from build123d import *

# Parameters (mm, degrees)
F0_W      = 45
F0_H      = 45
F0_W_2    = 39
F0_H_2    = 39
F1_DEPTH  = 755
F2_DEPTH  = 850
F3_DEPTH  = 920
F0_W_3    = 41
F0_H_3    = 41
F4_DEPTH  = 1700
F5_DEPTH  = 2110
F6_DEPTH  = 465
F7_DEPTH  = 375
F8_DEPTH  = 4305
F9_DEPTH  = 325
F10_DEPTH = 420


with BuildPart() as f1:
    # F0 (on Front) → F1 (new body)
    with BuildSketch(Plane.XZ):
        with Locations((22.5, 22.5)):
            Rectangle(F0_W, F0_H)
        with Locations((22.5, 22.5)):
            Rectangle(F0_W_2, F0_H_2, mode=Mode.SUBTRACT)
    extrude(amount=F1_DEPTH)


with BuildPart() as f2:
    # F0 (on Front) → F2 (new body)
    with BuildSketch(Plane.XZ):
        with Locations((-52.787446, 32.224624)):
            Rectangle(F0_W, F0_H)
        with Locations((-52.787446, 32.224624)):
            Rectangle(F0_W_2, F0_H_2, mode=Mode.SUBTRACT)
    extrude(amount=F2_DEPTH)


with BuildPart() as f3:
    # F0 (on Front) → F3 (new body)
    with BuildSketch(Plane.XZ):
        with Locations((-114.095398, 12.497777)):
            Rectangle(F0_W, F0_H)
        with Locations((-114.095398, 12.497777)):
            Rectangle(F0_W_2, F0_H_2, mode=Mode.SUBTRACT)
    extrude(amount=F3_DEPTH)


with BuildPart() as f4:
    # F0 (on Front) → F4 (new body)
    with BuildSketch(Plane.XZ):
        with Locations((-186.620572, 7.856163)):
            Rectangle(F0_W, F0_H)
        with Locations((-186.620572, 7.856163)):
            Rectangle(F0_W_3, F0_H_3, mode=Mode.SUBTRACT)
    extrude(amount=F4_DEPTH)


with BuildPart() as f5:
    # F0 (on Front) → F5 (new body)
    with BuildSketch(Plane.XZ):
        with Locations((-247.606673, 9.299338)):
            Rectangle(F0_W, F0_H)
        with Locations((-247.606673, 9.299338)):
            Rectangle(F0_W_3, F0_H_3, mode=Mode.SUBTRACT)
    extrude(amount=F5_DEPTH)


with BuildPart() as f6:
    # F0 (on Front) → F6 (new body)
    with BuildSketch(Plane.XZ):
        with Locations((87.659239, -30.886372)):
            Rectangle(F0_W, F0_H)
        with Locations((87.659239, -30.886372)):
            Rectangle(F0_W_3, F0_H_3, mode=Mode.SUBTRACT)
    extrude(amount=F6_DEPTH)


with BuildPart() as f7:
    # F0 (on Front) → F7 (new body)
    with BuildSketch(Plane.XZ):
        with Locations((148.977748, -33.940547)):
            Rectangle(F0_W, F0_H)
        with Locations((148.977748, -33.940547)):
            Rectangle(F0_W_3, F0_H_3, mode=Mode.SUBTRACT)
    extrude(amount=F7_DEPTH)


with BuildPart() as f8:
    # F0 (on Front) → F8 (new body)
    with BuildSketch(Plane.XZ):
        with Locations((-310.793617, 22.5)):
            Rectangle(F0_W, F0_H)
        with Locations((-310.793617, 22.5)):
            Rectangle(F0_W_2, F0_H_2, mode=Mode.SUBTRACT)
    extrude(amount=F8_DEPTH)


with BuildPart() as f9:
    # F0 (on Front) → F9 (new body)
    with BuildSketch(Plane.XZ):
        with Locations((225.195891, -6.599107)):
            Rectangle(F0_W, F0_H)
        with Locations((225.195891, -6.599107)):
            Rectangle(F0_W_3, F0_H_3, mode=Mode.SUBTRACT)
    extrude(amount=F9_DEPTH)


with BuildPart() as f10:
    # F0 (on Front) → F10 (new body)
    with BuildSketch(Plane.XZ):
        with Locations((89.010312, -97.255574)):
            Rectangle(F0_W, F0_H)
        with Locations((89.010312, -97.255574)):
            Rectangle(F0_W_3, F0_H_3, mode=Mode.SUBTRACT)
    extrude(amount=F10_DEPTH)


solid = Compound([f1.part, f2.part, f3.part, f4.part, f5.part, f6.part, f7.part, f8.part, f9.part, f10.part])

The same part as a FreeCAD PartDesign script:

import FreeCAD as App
import Part
import Sketcher

V = App.Vector

doc = App.newDocument("Part")
body = doc.addObject("PartDesign::Body", "Body")

sketch1 = body.newObject("Sketcher::SketchObject", "Sketch")
sketch1.AttachmentSupport = (doc.getObject("XZ_Plane"), [""])
sketch1.MapMode = "FlatFace"
sketch1.addGeometry([
    Part.LineSegment(V(0, 45, 0), V(0, 0, 0)),
    Part.LineSegment(V(0, 0, 0), V(45, 0, 0)),
    Part.LineSegment(V(45, 0, 0), V(45, 45, 0)),
    Part.LineSegment(V(45, 45, 0), V(0, 45, 0)),
    Part.LineSegment(V(42, 3, 0), V(3, 3, 0)),
    Part.LineSegment(V(3, 3, 0), V(3, 42, 0)),
    Part.LineSegment(V(3, 42, 0), V(42, 42, 0)),
    Part.LineSegment(V(42, 42, 0), V(42, 3, 0)),
], False)
sketch1.addConstraint([
    Sketcher.Constraint("Coincident", 0, 2, 1, 1),
    Sketcher.Constraint("Coincident", 1, 2, 2, 1),
    Sketcher.Constraint("Coincident", 2, 2, 3, 1),
    Sketcher.Constraint("Coincident", 3, 2, 0, 1),
    Sketcher.Constraint("Coincident", 4, 2, 5, 1),
    Sketcher.Constraint("Coincident", 5, 2, 6, 1),
    Sketcher.Constraint("Coincident", 6, 2, 7, 1),
    Sketcher.Constraint("Coincident", 7, 2, 4, 1),
    Sketcher.Constraint("Vertical", 0),
    Sketcher.Constraint("Horizontal", 1),
    Sketcher.Constraint("Vertical", 2),
    Sketcher.Constraint("Horizontal", 3),
    Sketcher.Constraint("Horizontal", 4),
    Sketcher.Constraint("Vertical", 5),
    Sketcher.Constraint("Horizontal", 6),
    Sketcher.Constraint("Vertical", 7),
    Sketcher.Constraint("Coincident", 0, 2, -1, 1),
    Sketcher.Constraint("Equal", 3, 0),
    Sketcher.Constraint("Equal", 6, 5),
    Sketcher.Constraint("DistanceX", 1, 1, 1, 2, 45.0),
    Sketcher.Constraint("DistanceX", 4, 2, 4, 1, 39.0),
    Sketcher.Constraint("DistanceX", -1, 1, 4, 2, 3.0),
    Sketcher.Constraint("DistanceY", -1, 1, 4, 2, 3.0),
])
pad1 = body.newObject("PartDesign::Pad", "Pad")
pad1.Profile = sketch1
pad1.Length = 755
body2 = doc.addObject("PartDesign::Body", "Body001")

sketch2 = body2.newObject("Sketcher::SketchObject", "Sketch001")
sketch2.AttachmentSupport = (doc.getObject("XZ_Plane001"), [""])
sketch2.MapMode = "FlatFace"
sketch2.addGeometry([
    Part.LineSegment(V(-75, 55, 0), V(-75, 10, 0)),
    Part.LineSegment(V(-75, 10, 0), V(-30, 10, 0)),
    Part.LineSegment(V(-30, 10, 0), V(-30, 55, 0)),
    Part.LineSegment(V(-30, 55, 0), V(-75, 55, 0)),
    Part.LineSegment(V(-33, 13, 0), V(-72, 13, 0)),
    Part.LineSegment(V(-72, 13, 0), V(-72, 52, 0)),
    Part.LineSegment(V(-72, 52, 0), V(-33, 52, 0)),
    Part.LineSegment(V(-33, 52, 0), V(-33, 13, 0)),
], False)
sketch2.addConstraint([
    Sketcher.Constraint("Coincident", 0, 2, 1, 1),
    Sketcher.Constraint("Coincident", 1, 2, 2, 1),
    Sketcher.Constraint("Coincident", 2, 2, 3, 1),
    Sketcher.Constraint("Coincident", 3, 2, 0, 1),
    Sketcher.Constraint("Coincident", 4, 2, 5, 1),
    Sketcher.Constraint("Coincident", 5, 2, 6, 1),
    Sketcher.Constraint("Coincident", 6, 2, 7, 1),
    Sketcher.Constraint("Coincident", 7, 2, 4, 1),
    Sketcher.Constraint("Vertical", 0),
    Sketcher.Constraint("Horizontal", 1),
    Sketcher.Constraint("Vertical", 2),
    Sketcher.Constraint("Horizontal", 3),
    Sketcher.Constraint("Horizontal", 4),
    Sketcher.Constraint("Vertical", 5),
    Sketcher.Constraint("Horizontal", 6),
    Sketcher.Constraint("Vertical", 7),
    Sketcher.Constraint("Equal", 3, 0),
    Sketcher.Constraint("Equal", 6, 5),
    Sketcher.Constraint("DistanceX", 1, 1, 1, 2, 45.0),
    Sketcher.Constraint("DistanceX", 4, 2, 4, 1, 39.0),
    Sketcher.Constraint("DistanceX", 0, 2, 4, 2, 3.0),
    Sketcher.Constraint("DistanceY", 0, 2, 4, 2, 3.0),
    Sketcher.Constraint("DistanceX", 0, 2, -1, 1, 75.287446),
    Sketcher.Constraint("DistanceY", -1, 1, 0, 2, 9.724624),
])
pad2 = body2.newObject("PartDesign::Pad", "Pad001")
pad2.Profile = sketch2
pad2.Length = 850
body3 = doc.addObject("PartDesign::Body", "Body002")

sketch3 = body3.newObject("Sketcher::SketchObject", "Sketch002")
sketch3.AttachmentSupport = (doc.getObject("XZ_Plane002"), [""])
sketch3.MapMode = "FlatFace"
sketch3.addGeometry([
    Part.LineSegment(V(-137, 35, 0), V(-137, -10, 0)),
    Part.LineSegment(V(-137, -10, 0), V(-92, -10, 0)),
    Part.LineSegment(V(-92, -10, 0), V(-92, 35, 0)),
    Part.LineSegment(V(-92, 35, 0), V(-137, 35, 0)),
    Part.LineSegment(V(-95, -7, 0), V(-134, -7, 0)),
    Part.LineSegment(V(-134, -7, 0), V(-134, 32, 0)),
    Part.LineSegment(V(-134, 32, 0), V(-95, 32, 0)),
    Part.LineSegment(V(-95, 32, 0), V(-95, -7, 0)),
], False)
sketch3.addConstraint([
    Sketcher.Constraint("Coincident", 0, 2, 1, 1),
    Sketcher.Constraint("Coincident", 1, 2, 2, 1),
    Sketcher.Constraint("Coincident", 2, 2, 3, 1),
    Sketcher.Constraint("Coincident", 3, 2, 0, 1),
    Sketcher.Constraint("Coincident", 4, 2, 5, 1),
    Sketcher.Constraint("Coincident", 5, 2, 6, 1),
    Sketcher.Constraint("Coincident", 6, 2, 7, 1),
    Sketcher.Constraint("Coincident", 7, 2, 4, 1),
    Sketcher.Constraint("Vertical", 0),
    Sketcher.Constraint("Horizontal", 1),
    Sketcher.Constraint("Vertical", 2),
    Sketcher.Constraint("Horizontal", 3),
    Sketcher.Constraint("Horizontal", 4),
    Sketcher.Constraint("Vertical", 5),
    Sketcher.Constraint("Horizontal", 6),
    Sketcher.Constraint("Vertical", 7),
    Sketcher.Constraint("Equal", 3, 0),
    Sketcher.Constraint("Equal", 6, 5),
    Sketcher.Constraint("DistanceX", 1, 1, 1, 2, 45.0),
    Sketcher.Constraint("DistanceX", 4, 2, 4, 1, 39.0),
    Sketcher.Constraint("DistanceX", 0, 2, 4, 2, 3.0),
    Sketcher.Constraint("DistanceY", 0, 2, 4, 2, 3.0),
    Sketcher.Constraint("DistanceX", 1, 2, -1, 1, 91.595398),
    Sketcher.Constraint("DistanceY", 0, 2, -1, 1, 10.002223),
])
pad3 = body3.newObject("PartDesign::Pad", "Pad002")
pad3.Profile = sketch3
pad3.Length = 920
body4 = doc.addObject("PartDesign::Body", "Body003")

sketch4 = body4.newObject("Sketcher::SketchObject", "Sketch003")
sketch4.AttachmentSupport = (doc.getObject("XZ_Plane003"), [""])
sketch4.MapMode = "FlatFace"
sketch4.addGeometry([
    Part.LineSegment(V(-209, 30, 0), V(-209, -15, 0)),
    Part.LineSegment(V(-209, -15, 0), V(-164, -15, 0)),
    Part.LineSegment(V(-164, -15, 0), V(-164, 30, 0)),
    Part.LineSegment(V(-164, 30, 0), V(-209, 30, 0)),
    Part.LineSegment(V(-166, -13, 0), V(-207, -13, 0)),
    Part.LineSegment(V(-207, -13, 0), V(-207, 28, 0)),
    Part.LineSegment(V(-207, 28, 0), V(-166, 28, 0)),
    Part.LineSegment(V(-166, 28, 0), V(-166, -13, 0)),
], False)
sketch4.addConstraint([
    Sketcher.Constraint("Coincident", 0, 2, 1, 1),
    Sketcher.Constraint("Coincident", 1, 2, 2, 1),
    Sketcher.Constraint("Coincident", 2, 2, 3, 1),
    Sketcher.Constraint("Coincident", 3, 2, 0, 1),
    Sketcher.Constraint("Coincident", 4, 2, 5, 1),
    Sketcher.Constraint("Coincident", 5, 2, 6, 1),
    Sketcher.Constraint("Coincident", 6, 2, 7, 1),
    Sketcher.Constraint("Coincident", 7, 2, 4, 1),
    Sketcher.Constraint("Vertical", 0),
    Sketcher.Constraint("Horizontal", 1),
    Sketcher.Constraint("Vertical", 2),
    Sketcher.Constraint("Horizontal", 3),
    Sketcher.Constraint("Horizontal", 4),
    Sketcher.Constraint("Vertical", 5),
    Sketcher.Constraint("Horizontal", 6),
    Sketcher.Constraint("Vertical", 7),
    Sketcher.Constraint("Equal", 3, 0),
    Sketcher.Constraint("Equal", 6, 5),
    Sketcher.Constraint("DistanceX", 1, 1, 1, 2, 45.0),
    Sketcher.Constraint("DistanceX", 4, 2, 4, 1, 41.0),
    Sketcher.Constraint("DistanceX", 0, 2, 4, 2, 2.0),
    Sketcher.Constraint("DistanceY", 0, 2, 4, 2, 2.0),
    Sketcher.Constraint("DistanceX", 0, 2, -1, 1, 209.120572),
    Sketcher.Constraint("DistanceY", 0, 2, -1, 1, 14.643837),
])
pad4 = body4.newObject("PartDesign::Pad", "Pad003")
pad4.Profile = sketch4
pad4.Length = 1700
body5 = doc.addObject("PartDesign::Body", "Body004")

sketch5 = body5.newObject("Sketcher::SketchObject", "Sketch004")
sketch5.AttachmentSupport = (doc.getObject("XZ_Plane004"), [""])
sketch5.MapMode = "FlatFace"
sketch5.addGeometry([
    Part.LineSegment(V(-270, 32, 0), V(-270, -13, 0)),
    Part.LineSegment(V(-270, -13, 0), V(-225, -13, 0)),
    Part.LineSegment(V(-225, -13, 0), V(-225, 32, 0)),
    Part.LineSegment(V(-225, 32, 0), V(-270, 32, 0)),
    Part.LineSegment(V(-227, -11, 0), V(-268, -11, 0)),
    Part.LineSegment(V(-268, -11, 0), V(-268, 30, 0)),
    Part.LineSegment(V(-268, 30, 0), V(-227, 30, 0)),
    Part.LineSegment(V(-227, 30, 0), V(-227, -11, 0)),
], False)
sketch5.addConstraint([
    Sketcher.Constraint("Coincident", 0, 2, 1, 1),
    Sketcher.Constraint("Coincident", 1, 2, 2, 1),
    Sketcher.Constraint("Coincident", 2, 2, 3, 1),
    Sketcher.Constraint("Coincident", 3, 2, 0, 1),
    Sketcher.Constraint("Coincident", 4, 2, 5, 1),
    Sketcher.Constraint("Coincident", 5, 2, 6, 1),
    Sketcher.Constraint("Coincident", 6, 2, 7, 1),
    Sketcher.Constraint("Coincident", 7, 2, 4, 1),
    Sketcher.Constraint("Vertical", 0),
    Sketcher.Constraint("Horizontal", 1),
    Sketcher.Constraint("Vertical", 2),
    Sketcher.Constraint("Horizontal", 3),
    Sketcher.Constraint("Horizontal", 4),
    Sketcher.Constraint("Vertical", 5),
    Sketcher.Constraint("Horizontal", 6),
    Sketcher.Constraint("Vertical", 7),
    Sketcher.Constraint("Equal", 3, 0),
    Sketcher.Constraint("Equal", 6, 5),
    Sketcher.Constraint("DistanceX", 1, 1, 1, 2, 45.0),
    Sketcher.Constraint("DistanceX", 4, 2, 4, 1, 41.0),
    Sketcher.Constraint("DistanceX", 0, 2, 4, 2, 2.0),
    Sketcher.Constraint("DistanceY", 0, 2, 4, 2, 2.0),
    Sketcher.Constraint("DistanceX", 0, 2, -1, 1, 270.106673),
    Sketcher.Constraint("DistanceY", 0, 2, -1, 1, 13.200662),
])
pad5 = body5.newObject("PartDesign::Pad", "Pad004")
pad5.Profile = sketch5
pad5.Length = 2110
body6 = doc.addObject("PartDesign::Body", "Body005")

sketch6 = body6.newObject("Sketcher::SketchObject", "Sketch005")
sketch6.AttachmentSupport = (doc.getObject("XZ_Plane005"), [""])
sketch6.MapMode = "FlatFace"
sketch6.addGeometry([
    Part.LineSegment(V(65, -8, 0), V(65, -53, 0)),
    Part.LineSegment(V(65, -53, 0), V(110, -53, 0)),
    Part.LineSegment(V(110, -53, 0), V(110, -8, 0)),
    Part.LineSegment(V(110, -8, 0), V(65, -8, 0)),
    Part.LineSegment(V(108, -51, 0), V(67, -51, 0)),
    Part.LineSegment(V(67, -51, 0), V(67, -10, 0)),
    Part.LineSegment(V(67, -10, 0), V(108, -10, 0)),
    Part.LineSegment(V(108, -10, 0), V(108, -51, 0)),
], False)
sketch6.addConstraint([
    Sketcher.Constraint("Coincident", 0, 2, 1, 1),
    Sketcher.Constraint("Coincident", 1, 2, 2, 1),
    Sketcher.Constraint("Coincident", 2, 2, 3, 1),
    Sketcher.Constraint("Coincident", 3, 2, 0, 1),
    Sketcher.Constraint("Coincident", 4, 2, 5, 1),
    Sketcher.Constraint("Coincident", 5, 2, 6, 1),
    Sketcher.Constraint("Coincident", 6, 2, 7, 1),
    Sketcher.Constraint("Coincident", 7, 2, 4, 1),
    Sketcher.Constraint("Vertical", 0),
    Sketcher.Constraint("Horizontal", 1),
    Sketcher.Constraint("Vertical", 2),
    Sketcher.Constraint("Horizontal", 3),
    Sketcher.Constraint("Horizontal", 4),
    Sketcher.Constraint("Vertical", 5),
    Sketcher.Constraint("Horizontal", 6),
    Sketcher.Constraint("Vertical", 7),
    Sketcher.Constraint("Equal", 3, 0),
    Sketcher.Constraint("Equal", 6, 5),
    Sketcher.Constraint("DistanceX", 1, 1, 1, 2, 45.0),
    Sketcher.Constraint("DistanceX", 4, 2, 4, 1, 41.0),
    Sketcher.Constraint("DistanceX", 0, 2, 4, 2, 2.0),
    Sketcher.Constraint("DistanceY", 0, 2, 4, 2, 2.0),
    Sketcher.Constraint("DistanceX", -1, 1, 0, 2, 65.159239),
    Sketcher.Constraint("DistanceY", 0, 2, -1, 1, 53.386372),
])
pad6 = body6.newObject("PartDesign::Pad", "Pad005")
pad6.Profile = sketch6
pad6.Length = 465
body7 = doc.addObject("PartDesign::Body", "Body006")

sketch7 = body7.newObject("Sketcher::SketchObject", "Sketch006")
sketch7.AttachmentSupport = (doc.getObject("XZ_Plane006"), [""])
sketch7.MapMode = "FlatFace"
sketch7.addGeometry([
    Part.LineSegment(V(126, -11, 0), V(126, -56, 0)),
    Part.LineSegment(V(126, -56, 0), V(171, -56, 0)),
    Part.LineSegment(V(171, -56, 0), V(171, -11, 0)),
    Part.LineSegment(V(171, -11, 0), V(126, -11, 0)),
    Part.LineSegment(V(169, -54, 0), V(128, -54, 0)),
    Part.LineSegment(V(128, -54, 0), V(128, -13, 0)),
    Part.LineSegment(V(128, -13, 0), V(169, -13, 0)),
    Part.LineSegment(V(169, -13, 0), V(169, -54, 0)),
], False)
sketch7.addConstraint([
    Sketcher.Constraint("Coincident", 0, 2, 1, 1),
    Sketcher.Constraint("Coincident", 1, 2, 2, 1),
    Sketcher.Constraint("Coincident", 2, 2, 3, 1),
    Sketcher.Constraint("Coincident", 3, 2, 0, 1),
    Sketcher.Constraint("Coincident", 4, 2, 5, 1),
    Sketcher.Constraint("Coincident", 5, 2, 6, 1),
    Sketcher.Constraint("Coincident", 6, 2, 7, 1),
    Sketcher.Constraint("Coincident", 7, 2, 4, 1),
    Sketcher.Constraint("Vertical", 0),
    Sketcher.Constraint("Horizontal", 1),
    Sketcher.Constraint("Vertical", 2),
    Sketcher.Constraint("Horizontal", 3),
    Sketcher.Constraint("Horizontal", 4),
    Sketcher.Constraint("Vertical", 5),
    Sketcher.Constraint("Horizontal", 6),
    Sketcher.Constraint("Vertical", 7),
    Sketcher.Constraint("Equal", 3, 0),
    Sketcher.Constraint("Equal", 6, 5),
    Sketcher.Constraint("DistanceX", 1, 1, 1, 2, 45.0),
    Sketcher.Constraint("DistanceX", 4, 2, 4, 1, 41.0),
    Sketcher.Constraint("DistanceX", 0, 2, 4, 2, 2.0),
    Sketcher.Constraint("DistanceY", 0, 2, 4, 2, 2.0),
    Sketcher.Constraint("DistanceX", -1, 1, 0, 2, 126.477748),
    Sketcher.Constraint("DistanceY", 0, 2, -1, 1, 56.440547),
])
pad7 = body7.newObject("PartDesign::Pad", "Pad006")
pad7.Profile = sketch7
pad7.Length = 375
body8 = doc.addObject("PartDesign::Body", "Body007")

sketch8 = body8.newObject("Sketcher::SketchObject", "Sketch007")
sketch8.AttachmentSupport = (doc.getObject("XZ_Plane007"), [""])
sketch8.MapMode = "FlatFace"
sketch8.addGeometry([
    Part.LineSegment(V(-333, 45, 0), V(-333, 0, 0)),
    Part.LineSegment(V(-333, 0, 0), V(-288, 0, 0)),
    Part.LineSegment(V(-288, 0, 0), V(-288, 45, 0)),
    Part.LineSegment(V(-288, 45, 0), V(-333, 45, 0)),
    Part.LineSegment(V(-291, 3, 0), V(-330, 3, 0)),
    Part.LineSegment(V(-330, 3, 0), V(-330, 42, 0)),
    Part.LineSegment(V(-330, 42, 0), V(-291, 42, 0)),
    Part.LineSegment(V(-291, 42, 0), V(-291, 3, 0)),
], False)
sketch8.addConstraint([
    Sketcher.Constraint("Coincident", 0, 2, 1, 1),
    Sketcher.Constraint("Coincident", 1, 2, 2, 1),
    Sketcher.Constraint("Coincident", 2, 2, 3, 1),
    Sketcher.Constraint("Coincident", 3, 2, 0, 1),
    Sketcher.Constraint("Coincident", 4, 2, 5, 1),
    Sketcher.Constraint("Coincident", 5, 2, 6, 1),
    Sketcher.Constraint("Coincident", 6, 2, 7, 1),
    Sketcher.Constraint("Coincident", 7, 2, 4, 1),
    Sketcher.Constraint("Vertical", 0),
    Sketcher.Constraint("Horizontal", 1),
    Sketcher.Constraint("Vertical", 2),
    Sketcher.Constraint("Horizontal", 3),
    Sketcher.Constraint("Horizontal", 4),
    Sketcher.Constraint("Vertical", 5),
    Sketcher.Constraint("Horizontal", 6),
    Sketcher.Constraint("Vertical", 7),
    Sketcher.Constraint("PointOnObject", 0, 2, -1),
    Sketcher.Constraint("Equal", 3, 0),
    Sketcher.Constraint("Equal", 6, 5),
    Sketcher.Constraint("DistanceX", 1, 1, 1, 2, 45.0),
    Sketcher.Constraint("DistanceX", 4, 2, 4, 1, 39.0),
    Sketcher.Constraint("DistanceY", -1, 1, 4, 2, 3.0),
    Sketcher.Constraint("DistanceX", 0, 2, 4, 2, 3.0),
    Sketcher.Constraint("DistanceX", 0, 2, -1, 1, 333.293617),
])
pad8 = body8.newObject("PartDesign::Pad", "Pad007")
pad8.Profile = sketch8
pad8.Length = 4305
body9 = doc.addObject("PartDesign::Body", "Body008")

sketch9 = body9.newObject("Sketcher::SketchObject", "Sketch008")
sketch9.AttachmentSupport = (doc.getObject("XZ_Plane008"), [""])
sketch9.MapMode = "FlatFace"
sketch9.addGeometry([
    Part.LineSegment(V(203, 16, 0), V(203, -29, 0)),
    Part.LineSegment(V(203, -29, 0), V(248, -29, 0)),
    Part.LineSegment(V(248, -29, 0), V(248, 16, 0)),
    Part.LineSegment(V(248, 16, 0), V(203, 16, 0)),
    Part.LineSegment(V(246, -27, 0), V(205, -27, 0)),
    Part.LineSegment(V(205, -27, 0), V(205, 14, 0)),
    Part.LineSegment(V(205, 14, 0), V(246, 14, 0)),
    Part.LineSegment(V(246, 14, 0), V(246, -27, 0)),
], False)
sketch9.addConstraint([
    Sketcher.Constraint("Coincident", 0, 2, 1, 1),
    Sketcher.Constraint("Coincident", 1, 2, 2, 1),
    Sketcher.Constraint("Coincident", 2, 2, 3, 1),
    Sketcher.Constraint("Coincident", 3, 2, 0, 1),
    Sketcher.Constraint("Coincident", 4, 2, 5, 1),
    Sketcher.Constraint("Coincident", 5, 2, 6, 1),
    Sketcher.Constraint("Coincident", 6, 2, 7, 1),
    Sketcher.Constraint("Coincident", 7, 2, 4, 1),
    Sketcher.Constraint("Vertical", 0),
    Sketcher.Constraint("Horizontal", 1),
    Sketcher.Constraint("Vertical", 2),
    Sketcher.Constraint("Horizontal", 3),
    Sketcher.Constraint("Horizontal", 4),
    Sketcher.Constraint("Vertical", 5),
    Sketcher.Constraint("Horizontal", 6),
    Sketcher.Constraint("Vertical", 7),
    Sketcher.Constraint("Equal", 3, 0),
    Sketcher.Constraint("Equal", 6, 5),
    Sketcher.Constraint("DistanceX", 1, 1, 1, 2, 45.0),
    Sketcher.Constraint("DistanceX", 4, 2, 4, 1, 41.0),
    Sketcher.Constraint("DistanceX", 0, 2, 4, 2, 2.0),
    Sketcher.Constraint("DistanceY", 0, 2, 4, 2, 2.0),
    Sketcher.Constraint("DistanceX", -1, 1, 0, 2, 202.695891),
    Sketcher.Constraint("DistanceY", 0, 2, -1, 1, 29.099107),
])
pad9 = body9.newObject("PartDesign::Pad", "Pad008")
pad9.Profile = sketch9
pad9.Length = 325
body10 = doc.addObject("PartDesign::Body", "Body009")

sketch10 = body10.newObject("Sketcher::SketchObject", "Sketch009")
sketch10.AttachmentSupport = (doc.getObject("XZ_Plane009"), [""])
sketch10.MapMode = "FlatFace"
sketch10.addGeometry([
    Part.LineSegment(V(67, -75, 0), V(67, -120, 0)),
    Part.LineSegment(V(67, -120, 0), V(112, -120, 0)),
    Part.LineSegment(V(112, -120, 0), V(112, -75, 0)),
    Part.LineSegment(V(112, -75, 0), V(67, -75, 0)),
    Part.LineSegment(V(110, -118, 0), V(69, -118, 0)),
    Part.LineSegment(V(69, -118, 0), V(69, -77, 0)),
    Part.LineSegment(V(69, -77, 0), V(110, -77, 0)),
    Part.LineSegment(V(110, -77, 0), V(110, -118, 0)),
], False)
sketch10.addConstraint([
    Sketcher.Constraint("Coincident", 0, 2, 1, 1),
    Sketcher.Constraint("Coincident", 1, 2, 2, 1),
    Sketcher.Constraint("Coincident", 2, 2, 3, 1),
    Sketcher.Constraint("Coincident", 3, 2, 0, 1),
    Sketcher.Constraint("Coincident", 4, 2, 5, 1),
    Sketcher.Constraint("Coincident", 5, 2, 6, 1),
    Sketcher.Constraint("Coincident", 6, 2, 7, 1),
    Sketcher.Constraint("Coincident", 7, 2, 4, 1),
    Sketcher.Constraint("Vertical", 0),
    Sketcher.Constraint("Horizontal", 1),
    Sketcher.Constraint("Vertical", 2),
    Sketcher.Constraint("Horizontal", 3),
    Sketcher.Constraint("Horizontal", 4),
    Sketcher.Constraint("Vertical", 5),
    Sketcher.Constraint("Horizontal", 6),
    Sketcher.Constraint("Vertical", 7),
    Sketcher.Constraint("Equal", 3, 0),
    Sketcher.Constraint("Equal", 6, 5),
    Sketcher.Constraint("DistanceX", 1, 1, 1, 2, 45.0),
    Sketcher.Constraint("DistanceX", 4, 2, 4, 1, 41.0),
    Sketcher.Constraint("DistanceX", 0, 2, 4, 2, 2.0),
    Sketcher.Constraint("DistanceY", 0, 2, 4, 2, 2.0),
    Sketcher.Constraint("DistanceX", -1, 1, 0, 2, 66.510312),
    Sketcher.Constraint("DistanceY", 0, 2, -1, 1, 119.755574),
])
pad10 = body10.newObject("PartDesign::Pad", "Pad009")
pad10.Profile = sketch10
pad10.Length = 420

doc.recompute()
